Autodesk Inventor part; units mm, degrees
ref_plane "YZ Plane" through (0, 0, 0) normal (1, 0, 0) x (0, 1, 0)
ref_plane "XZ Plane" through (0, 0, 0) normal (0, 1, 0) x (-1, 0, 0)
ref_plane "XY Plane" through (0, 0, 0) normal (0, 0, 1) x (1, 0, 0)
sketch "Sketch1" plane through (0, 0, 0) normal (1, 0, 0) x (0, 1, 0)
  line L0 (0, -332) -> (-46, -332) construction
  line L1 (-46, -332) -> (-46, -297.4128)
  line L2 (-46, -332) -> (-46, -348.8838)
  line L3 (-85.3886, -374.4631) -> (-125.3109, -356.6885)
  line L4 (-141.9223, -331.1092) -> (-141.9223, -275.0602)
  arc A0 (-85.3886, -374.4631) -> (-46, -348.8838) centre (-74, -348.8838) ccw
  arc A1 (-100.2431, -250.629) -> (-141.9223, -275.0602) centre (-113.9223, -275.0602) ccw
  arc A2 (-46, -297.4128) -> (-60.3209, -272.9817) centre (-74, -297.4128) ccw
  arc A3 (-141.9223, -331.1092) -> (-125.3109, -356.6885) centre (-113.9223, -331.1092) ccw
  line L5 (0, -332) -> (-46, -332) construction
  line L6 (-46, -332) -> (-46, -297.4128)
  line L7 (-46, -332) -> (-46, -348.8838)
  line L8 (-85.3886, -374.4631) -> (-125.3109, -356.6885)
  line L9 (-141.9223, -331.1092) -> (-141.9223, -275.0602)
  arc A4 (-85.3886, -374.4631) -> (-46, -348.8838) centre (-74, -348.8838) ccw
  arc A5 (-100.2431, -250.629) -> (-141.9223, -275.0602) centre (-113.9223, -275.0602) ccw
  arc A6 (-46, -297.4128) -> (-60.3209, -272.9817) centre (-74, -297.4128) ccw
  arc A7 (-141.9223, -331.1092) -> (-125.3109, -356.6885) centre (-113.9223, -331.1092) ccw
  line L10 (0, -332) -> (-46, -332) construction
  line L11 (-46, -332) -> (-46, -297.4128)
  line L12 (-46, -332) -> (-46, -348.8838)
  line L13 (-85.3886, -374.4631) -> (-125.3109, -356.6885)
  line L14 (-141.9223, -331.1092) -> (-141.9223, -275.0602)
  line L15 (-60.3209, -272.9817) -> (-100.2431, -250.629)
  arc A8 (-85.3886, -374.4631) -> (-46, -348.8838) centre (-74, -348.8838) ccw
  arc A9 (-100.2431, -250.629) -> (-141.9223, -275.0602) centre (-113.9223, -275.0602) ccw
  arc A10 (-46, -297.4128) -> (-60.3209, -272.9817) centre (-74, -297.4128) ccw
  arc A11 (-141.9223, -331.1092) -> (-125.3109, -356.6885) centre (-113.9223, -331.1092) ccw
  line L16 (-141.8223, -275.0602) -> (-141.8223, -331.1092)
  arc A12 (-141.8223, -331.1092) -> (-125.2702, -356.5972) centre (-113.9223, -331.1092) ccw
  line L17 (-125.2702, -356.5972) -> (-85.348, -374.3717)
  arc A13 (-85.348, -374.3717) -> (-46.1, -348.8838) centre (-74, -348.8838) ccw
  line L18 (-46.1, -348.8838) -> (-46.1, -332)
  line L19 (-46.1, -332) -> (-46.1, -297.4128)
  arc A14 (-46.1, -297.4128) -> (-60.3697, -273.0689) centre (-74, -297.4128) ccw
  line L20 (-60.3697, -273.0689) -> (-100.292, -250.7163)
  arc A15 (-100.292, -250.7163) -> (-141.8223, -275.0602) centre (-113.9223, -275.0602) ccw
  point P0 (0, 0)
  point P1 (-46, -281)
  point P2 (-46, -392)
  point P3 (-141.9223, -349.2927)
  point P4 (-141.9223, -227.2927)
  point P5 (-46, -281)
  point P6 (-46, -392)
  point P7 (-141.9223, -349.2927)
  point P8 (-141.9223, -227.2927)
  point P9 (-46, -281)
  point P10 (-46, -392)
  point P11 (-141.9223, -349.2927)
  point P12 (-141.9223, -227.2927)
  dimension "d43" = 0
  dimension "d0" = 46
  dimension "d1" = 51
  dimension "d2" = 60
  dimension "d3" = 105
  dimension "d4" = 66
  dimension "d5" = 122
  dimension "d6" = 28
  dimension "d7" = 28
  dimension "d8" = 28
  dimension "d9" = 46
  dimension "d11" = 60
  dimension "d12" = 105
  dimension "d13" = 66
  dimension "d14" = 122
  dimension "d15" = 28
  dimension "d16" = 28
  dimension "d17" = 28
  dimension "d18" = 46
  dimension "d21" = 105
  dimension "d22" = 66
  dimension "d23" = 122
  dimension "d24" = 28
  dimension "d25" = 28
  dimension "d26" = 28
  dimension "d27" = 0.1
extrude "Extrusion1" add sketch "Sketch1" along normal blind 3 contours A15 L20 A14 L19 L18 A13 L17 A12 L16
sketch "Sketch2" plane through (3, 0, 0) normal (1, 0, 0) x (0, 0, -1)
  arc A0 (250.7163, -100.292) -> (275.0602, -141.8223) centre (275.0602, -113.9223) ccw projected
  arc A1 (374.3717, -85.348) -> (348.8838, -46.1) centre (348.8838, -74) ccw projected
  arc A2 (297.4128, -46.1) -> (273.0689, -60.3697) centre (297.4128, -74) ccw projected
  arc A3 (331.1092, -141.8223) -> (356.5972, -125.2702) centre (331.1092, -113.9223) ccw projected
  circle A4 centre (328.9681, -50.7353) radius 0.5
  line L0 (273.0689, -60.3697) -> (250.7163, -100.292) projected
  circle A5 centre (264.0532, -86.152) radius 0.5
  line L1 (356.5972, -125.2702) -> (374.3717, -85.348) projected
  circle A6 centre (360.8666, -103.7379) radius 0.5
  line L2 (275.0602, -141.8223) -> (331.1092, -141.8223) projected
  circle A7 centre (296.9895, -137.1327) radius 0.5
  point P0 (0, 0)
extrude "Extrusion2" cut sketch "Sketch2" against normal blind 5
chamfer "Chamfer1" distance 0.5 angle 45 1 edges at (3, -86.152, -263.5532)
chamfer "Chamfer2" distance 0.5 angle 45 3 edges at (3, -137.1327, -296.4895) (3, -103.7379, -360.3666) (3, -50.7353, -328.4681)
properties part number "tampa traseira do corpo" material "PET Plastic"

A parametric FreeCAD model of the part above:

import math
import FreeCAD as App
import Part
import Sketcher

V = App.Vector
Q = App.Units.Quantity


def edges_at(feature, points):
    """Names of the edges that pass closest to the given points."""
    edges = feature.Shape.Edges
    near = lambda p: min(range(len(edges)), key=lambda i: edges[i].distToShape(Part.Vertex(*p))[0])
    return sorted({f"Edge{near(p) + 1}" for p in points})

doc = App.newDocument("Part")
body = doc.addObject("PartDesign::Body", "Body")

sketch1 = body.newObject("Sketcher::SketchObject", "Sketch")
sketch1.AttachmentSupport = (doc.getObject("YZ_Plane"), [""])
sketch1.MapMode = "FlatFace"
sketch1.addGeometry([
    Part.ArcOfCircle(Part.Circle(V(-114, -275, 0), V(0, 0, 1), 28), math.radians(61), math.radians(180)),
    Part.LineSegment(V(-142, -275, 0), V(-142, -331, 0)),
    Part.ArcOfCircle(Part.Circle(V(-114, -331, 0), V(0, 0, 1), 28), math.radians(180), math.radians(246)),
    Part.LineSegment(V(-125, -357, 0), V(-85, -374, 0)),
    Part.ArcOfCircle(Part.Circle(V(-74, -349, 0), V(0, 0, 1), 28), math.radians(-114), math.radians(0)),
    Part.LineSegment(V(-46, -349, 0), V(-46, -297, 0)),
    Part.ArcOfCircle(Part.Circle(V(-74, -297, 0), V(0, 0, 1), 28), math.radians(0), math.radians(61)),
    Part.LineSegment(V(-60, -273, 0), V(-100, -251, 0)),
], False)
sketch1.addConstraint([
    Sketcher.Constraint("Tangent", 0, 2, 1, 1),
    Sketcher.Constraint("Tangent", 1, 2, 2, 1),
    Sketcher.Constraint("Tangent", 2, 2, 3, 1),
    Sketcher.Constraint("Tangent", 3, 2, 4, 1),
    Sketcher.Constraint("Tangent", 4, 2, 5, 1),
    Sketcher.Constraint("Tangent", 5, 2, 6, 1),
    Sketcher.Constraint("Tangent", 6, 2, 7, 1),
    Sketcher.Constraint("Tangent", 7, 2, 0, 1),
    Sketcher.Constraint("Vertical", 1),
    Sketcher.Constraint("Vertical", 5),
    Sketcher.Constraint("Equal", 0, 2),
    Sketcher.Constraint("Equal", 2, 4),
    Sketcher.Constraint("Equal", 4, 6),
    Sketcher.Constraint("Radius", 0, Q("27.9 mm")),
    Sketcher.Constraint("Angle", 3, Q("-24 deg")),
    Sketcher.Constraint("DistanceX", 4, 3, -1, 1, Q("74 mm")),
    Sketcher.Constraint("DistanceY", 1, 2, 1, 1, Q("56.049 mm")),
    Sketcher.Constraint("DistanceY", 5, 1, 5, 2, Q("51.471 mm")),
    Sketcher.Constraint("Distance", 7, Q("45.754 mm")),
    Sketcher.Constraint("DistanceY", 6, 2, -1, 1, Q("273.069 mm")),
])
pad1 = body.newObject("PartDesign::Pad", "Pad")
pad1.Profile = sketch1
pad1.Length = 3

sketch2 = body.newObject("Sketcher::SketchObject", "Sketch001")
sketch2.AttachmentSupport = (doc.getObject("YZ_Plane"), [""])
sketch2.MapMode = "FlatFace"
sketch2.AttachmentOffset = App.Placement(V(0, 0, 3), App.Rotation())
sketch2.addGeometry([
    Part.Circle(V(-50.7, -329, 0), V(0, 0, 1), 0.5),
    Part.Circle(V(-86.2, -264.1, 0), V(0, 0, 1), 0.5),
    Part.Circle(V(-103.7, -360.9, 0), V(0, 0, 1), 0.5),
    Part.Circle(V(-137.1, -297, 0), V(0, 0, 1), 0.5),
], False)
sketch2.addConstraint([
    Sketcher.Constraint("Equal", 0, 1),
    Sketcher.Constraint("Equal", 1, 2),
    Sketcher.Constraint("Equal", 2, 3),
    Sketcher.Constraint("Diameter", 0, Q("1 mm")),
    Sketcher.Constraint("DistanceY", 0, 3, -1, 1, Q("328.968 mm")),
    Sketcher.Constraint("DistanceX", 1, 3, -1, 1, Q("86.152 mm")),
    Sketcher.Constraint("DistanceX", 2, 3, -1, 1, Q("103.738 mm")),
    Sketcher.Constraint("DistanceY", 0, 3, 1, 3, Q("64.915 mm")),
    Sketcher.Constraint("DistanceY", 2, 3, 3, 3, Q("63.877 mm")),
    Sketcher.Constraint("DistanceX", 0, 3, -1, 1, Q("50.7353 mm")),
    Sketcher.Constraint("DistanceY", 2, 3, -1, 1, Q("360.8666 mm")),
    Sketcher.Constraint("DistanceX", 3, 3, -1, 1, Q("137.1327 mm")),
])
pocket1 = body.newObject("PartDesign::Pocket", "Pocket")
pocket1.Profile = sketch2
pocket1.Length = 5
doc.recompute()

chamfer = body.newObject("PartDesign::Chamfer", "Chamfer")
chamfer.Base = (pocket1, edges_at(pocket1, [(3, -86.152, -263.553)]))
chamfer.Size = 0.5
doc.recompute()

chamfer2 = body.newObject("PartDesign::Chamfer", "Chamfer001")
chamfer2.Base = (chamfer, edges_at(chamfer, [(3, -137.133, -296.49), (3, -103.738, -360.367), (3, -50.735, -328.468)]))
chamfer2.Size = 0.5

doc.recompute()
